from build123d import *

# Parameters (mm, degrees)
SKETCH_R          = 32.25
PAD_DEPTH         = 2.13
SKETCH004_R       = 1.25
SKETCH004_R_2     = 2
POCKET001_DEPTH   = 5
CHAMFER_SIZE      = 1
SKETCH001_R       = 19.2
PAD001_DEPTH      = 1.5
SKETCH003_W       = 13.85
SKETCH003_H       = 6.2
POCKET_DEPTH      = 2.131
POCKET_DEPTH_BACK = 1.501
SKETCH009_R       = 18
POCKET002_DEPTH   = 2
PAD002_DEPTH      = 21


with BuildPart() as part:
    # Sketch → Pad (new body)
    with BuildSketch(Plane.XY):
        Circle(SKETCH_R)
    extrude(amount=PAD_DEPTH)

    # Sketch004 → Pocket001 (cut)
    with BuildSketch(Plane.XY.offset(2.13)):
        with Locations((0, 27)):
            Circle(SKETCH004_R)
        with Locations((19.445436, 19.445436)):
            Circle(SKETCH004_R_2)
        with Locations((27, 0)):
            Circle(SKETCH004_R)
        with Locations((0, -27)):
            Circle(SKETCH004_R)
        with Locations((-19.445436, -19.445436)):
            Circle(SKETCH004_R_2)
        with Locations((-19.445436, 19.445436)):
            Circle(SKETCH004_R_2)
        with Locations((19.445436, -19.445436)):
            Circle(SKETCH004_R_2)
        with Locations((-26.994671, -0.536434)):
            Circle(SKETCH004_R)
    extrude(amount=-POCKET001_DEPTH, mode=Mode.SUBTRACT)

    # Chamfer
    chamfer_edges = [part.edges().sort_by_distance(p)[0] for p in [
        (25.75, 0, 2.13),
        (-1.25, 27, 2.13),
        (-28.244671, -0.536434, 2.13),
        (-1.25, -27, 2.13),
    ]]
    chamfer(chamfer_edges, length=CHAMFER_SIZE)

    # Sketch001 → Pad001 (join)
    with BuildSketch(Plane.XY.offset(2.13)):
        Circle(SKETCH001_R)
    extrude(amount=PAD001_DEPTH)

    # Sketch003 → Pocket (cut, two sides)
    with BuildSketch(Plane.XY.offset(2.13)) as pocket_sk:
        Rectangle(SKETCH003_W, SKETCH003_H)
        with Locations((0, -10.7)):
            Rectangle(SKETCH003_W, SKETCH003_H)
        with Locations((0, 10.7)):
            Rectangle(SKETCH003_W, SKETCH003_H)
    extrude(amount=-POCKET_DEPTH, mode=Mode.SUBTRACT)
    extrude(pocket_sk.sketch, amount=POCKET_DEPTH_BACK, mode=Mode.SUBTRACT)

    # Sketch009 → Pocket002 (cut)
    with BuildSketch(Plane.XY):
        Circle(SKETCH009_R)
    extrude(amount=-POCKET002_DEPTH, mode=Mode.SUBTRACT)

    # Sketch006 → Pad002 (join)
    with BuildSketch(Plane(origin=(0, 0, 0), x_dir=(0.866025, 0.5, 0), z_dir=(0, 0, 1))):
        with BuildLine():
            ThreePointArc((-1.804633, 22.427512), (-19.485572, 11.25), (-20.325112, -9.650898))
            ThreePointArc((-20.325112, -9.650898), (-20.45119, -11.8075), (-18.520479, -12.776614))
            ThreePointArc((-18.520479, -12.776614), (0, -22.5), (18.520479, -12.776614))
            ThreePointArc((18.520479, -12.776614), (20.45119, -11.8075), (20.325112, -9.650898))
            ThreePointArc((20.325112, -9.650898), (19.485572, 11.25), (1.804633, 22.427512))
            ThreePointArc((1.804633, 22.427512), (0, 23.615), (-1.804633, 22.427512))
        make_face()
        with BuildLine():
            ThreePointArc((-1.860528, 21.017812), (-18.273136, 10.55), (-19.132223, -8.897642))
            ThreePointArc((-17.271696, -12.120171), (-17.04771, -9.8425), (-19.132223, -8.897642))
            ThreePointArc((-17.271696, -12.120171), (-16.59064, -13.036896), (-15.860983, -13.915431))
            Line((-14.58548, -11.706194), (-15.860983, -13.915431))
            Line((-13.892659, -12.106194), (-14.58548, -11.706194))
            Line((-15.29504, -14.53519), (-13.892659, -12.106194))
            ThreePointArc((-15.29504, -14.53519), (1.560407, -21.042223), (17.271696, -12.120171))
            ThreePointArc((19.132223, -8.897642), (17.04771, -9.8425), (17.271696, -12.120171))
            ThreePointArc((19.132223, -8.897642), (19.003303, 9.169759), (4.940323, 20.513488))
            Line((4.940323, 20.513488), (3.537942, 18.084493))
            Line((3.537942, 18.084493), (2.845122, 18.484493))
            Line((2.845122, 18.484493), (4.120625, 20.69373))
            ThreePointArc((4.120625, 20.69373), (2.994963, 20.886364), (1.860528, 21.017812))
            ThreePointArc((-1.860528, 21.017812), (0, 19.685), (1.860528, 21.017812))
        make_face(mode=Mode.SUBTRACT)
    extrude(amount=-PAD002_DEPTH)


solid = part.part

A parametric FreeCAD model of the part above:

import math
import FreeCAD as App
import Part
import Sketcher
from FreeCAD import Vector
Q = App.Units.Quantity


def edges_at(feature, points):
    """Names of the edges that pass closest to the given points."""
    edges = feature.Shape.Edges
    near = lambda p: min(range(len(edges)), key=lambda i: edges[i].distToShape(Part.Vertex(*p))[0])
    return sorted({f"Edge{near(p) + 1}" for p in points})

doc = App.newDocument("Part")
body = doc.addObject("PartDesign::Body", "Body")

# Sketch on XY plane
sketch1 = doc.addObject("Sketcher::SketchObject", "Sketch")
body.addObject(sketch1)
sketch1.AttachmentSupport = (doc.XY_Plane, [""])
sketch1.MapMode = "FlatFace"
sketch1.addGeometry(Part.Circle(Vector(0, 0, 0), Vector(0, 0, 1), 32), False)
sketch1.addConstraint(Sketcher.Constraint("Coincident", 0, 3, -1, 1))
sketch1.addConstraint(Sketcher.Constraint("Diameter", 0, Q("64.5 mm")))
pad1 = doc.addObject("PartDesign::Pad", "Pad")
body.addObject(pad1)
pad1.Profile = sketch1
pad1.Length = 2.13

# Sketch on XY plane
sketch2 = doc.addObject("Sketcher::SketchObject", "Sketch001")
body.addObject(sketch2)
sketch2.AttachmentSupport = (doc.XY_Plane, [""])
sketch2.MapMode = "FlatFace"
sketch2.AttachmentOffset = App.Placement(Vector(0, 0, 2.13), App.Rotation())
sketch2.addGeometry(Part.Circle(Vector(0, 27, 0), Vector(0, 0, 1), 1.2), False)
sketch2.addGeometry(Part.Circle(Vector(19.4, 19.4, 0), Vector(0, 0, 1), 2), False)
sketch2.addGeometry(Part.Circle(Vector(27, 0, 0), Vector(0, 0, 1), 1.2), False)
sketch2.addGeometry(Part.Circle(Vector(0, -27, 0), Vector(0, 0, 1), 1.2), False)
sketch2.addGeometry(Part.Circle(Vector(-19.4, -19.4, 0), Vector(0, 0, 1), 2), False)
sketch2.addGeometry(Part.Circle(Vector(-19.4, 19.4, 0), Vector(0, 0, 1), 2), False)
sketch2.addGeometry(Part.Circle(Vector(19.4, -19.4, 0), Vector(0, 0, 1), 2), False)
sketch2.addGeometry(Part.Circle(Vector(-27, -0.5, 0), Vector(0, 0, 1), 1.2), False)
sketch2.addConstraint(Sketcher.Constraint("Equal", 0, 2))
sketch2.addConstraint(Sketcher.Constraint("Equal", 2, 3))
sketch2.addConstraint(Sketcher.Constraint("Equal", 1, 4))
sketch2.addConstraint(Sketcher.Constraint("Equal", 4, 5))
sketch2.addConstraint(Sketcher.Constraint("Equal", 5, 6))
sketch2.addConstraint(Sketcher.Constraint("Equal", 3, 7))
sketch2.addConstraint(Sketcher.Constraint("Symmetric", 0, 3, 3, 3, -1, 1))
sketch2.addConstraint(Sketcher.Constraint("Symmetric", 1, 3, 4, 3, -1, 1))
sketch2.addConstraint(Sketcher.Constraint("Symmetric", 5, 3, 6, 3, -1, 1))
sketch2.addConstraint(Sketcher.Constraint("Symmetric", 1, 3, 5, 3, -2))
sketch2.addConstraint(Sketcher.Constraint("PointOnObject", 0, 3, -2))
sketch2.addConstraint(Sketcher.Constraint("PointOnObject", 2, 3, -1))
sketch2.addConstraint(Sketcher.Constraint("Diameter", 1, Q("4 mm")))
sketch2.addConstraint(Sketcher.Constraint("Diameter", 0, Q("2.5 mm")))
sketch2.addConstraint(Sketcher.Constraint("DistanceY", -1, 1, 0, 3, Q("27 mm")))
sketch2.addConstraint(Sketcher.Constraint("DistanceX", -1, 1, 2, 3, Q("27 mm")))
sketch2.addConstraint(Sketcher.Constraint("DistanceX", 7, 3, -1, 1, Q("26.994671 mm")))
sketch2.addConstraint(Sketcher.Constraint("DistanceY", 7, 3, 5, 3, Q("19.98187 mm")))
sketch2.addConstraint(Sketcher.Constraint("DistanceX", -1, 1, 1, 3, Q("19.445436 mm")))
sketch2.addConstraint(Sketcher.Constraint("DistanceY", -1, 1, 1, 3, Q("19.445436 mm")))
pocket1 = doc.addObject("PartDesign::Pocket", "Pocket")
body.addObject(pocket1)
pocket1.Profile = sketch2
pocket1.Length = 5
doc.recompute()

chamfer = doc.addObject("PartDesign::Chamfer", "Chamfer")
body.addObject(chamfer)
chamfer.Base = (pocket1, edges_at(pocket1, [
    (25.75, 0, 2.13),
    (-1.25, 27, 2.13),
    (-28.245, -0.536, 2.13),
    (-1.25, -27, 2.13),
]))
chamfer.Size = 1

# Sketch on XY plane
sketch3 = doc.addObject("Sketcher::SketchObject", "Sketch002")
body.addObject(sketch3)
sketch3.AttachmentSupport = (doc.XY_Plane, [""])
sketch3.MapMode = "FlatFace"
sketch3.AttachmentOffset = App.Placement(Vector(0, 0, 2.13), App.Rotation())
sketch3.addGeometry(Part.Circle(Vector(0, 0, 0), Vector(0, 0, 1), 19), False)
sketch3.addConstraint(Sketcher.Constraint("Coincident", 0, 3, -1, 1))
sketch3.addConstraint(Sketcher.Constraint("Diameter", 0, Q("38.4 mm")))
pad2 = doc.addObject("PartDesign::Pad", "Pad001")
body.addObject(pad2)
pad2.Profile = sketch3
pad2.Length = 1.5

# Sketch on XY plane
sketch4 = doc.addObject("Sketcher::SketchObject", "Sketch003")
body.addObject(sketch4)
sketch4.AttachmentSupport = (doc.XY_Plane, [""])
sketch4.MapMode = "FlatFace"
sketch4.AttachmentOffset = App.Placement(Vector(0, 0, 2.13), App.Rotation())
sketch4.addGeometry(Part.LineSegment(Vector(-7, 3, 0), Vector(-7, -3, 0)), False)
sketch4.addGeometry(Part.LineSegment(Vector(-7, -3, 0), Vector(7, -3, 0)), False)
sketch4.addGeometry(Part.LineSegment(Vector(7, -3, 0), Vector(7, 3, 0)), False)
sketch4.addGeometry(Part.LineSegment(Vector(7, 3, 0), Vector(-7, 3, 0)), False)
sketch4.addGeometry(Part.LineSegment(Vector(-7, -8, 0), Vector(-7, -14, 0)), False)
sketch4.addGeometry(Part.LineSegment(Vector(-7, -14, 0), Vector(7, -14, 0)), False)
sketch4.addGeometry(Part.LineSegment(Vector(7, -14, 0), Vector(7, -8, 0)), False)
sketch4.addGeometry(Part.LineSegment(Vector(7, -8, 0), Vector(-7, -8, 0)), False)
sketch4.addGeometry(Part.LineSegment(Vector(-7, 14, 0), Vector(-7, 8, 0)), False)
sketch4.addGeometry(Part.LineSegment(Vector(-7, 8, 0), Vector(7, 8, 0)), False)
sketch4.addGeometry(Part.LineSegment(Vector(7, 8, 0), Vector(7, 14, 0)), False)
sketch4.addGeometry(Part.LineSegment(Vector(7, 14, 0), Vector(-7, 14, 0)), False)
sketch4.addConstraint(Sketcher.Constraint("Coincident", 0, 2, 1, 1))
sketch4.addConstraint(Sketcher.Constraint("Coincident", 1, 2, 2, 1))
sketch4.addConstraint(Sketcher.Constraint("Coincident", 2, 2, 3, 1))
sketch4.addConstraint(Sketcher.Constraint("Coincident", 3, 2, 0, 1))
sketch4.addConstraint(Sketcher.Constraint("Coincident", 4, 2, 5, 1))
sketch4.addConstraint(Sketcher.Constraint("Coincident", 5, 2, 6, 1))
sketch4.addConstraint(Sketcher.Constraint("Coincident", 6, 2, 7, 1))
sketch4.addConstraint(Sketcher.Constraint("Coincident", 7, 2, 4, 1))
sketch4.addConstraint(Sketcher.Constraint("Coincident", 8, 2, 9, 1))
sketch4.addConstraint(Sketcher.Constraint("Coincident", 9, 2, 10, 1))
sketch4.addConstraint(Sketcher.Constraint("Coincident", 10, 2, 11, 1))
sketch4.addConstraint(Sketcher.Constraint("Coincident", 11, 2, 8, 1))
sketch4.addConstraint(Sketcher.Constraint("Vertical", 0))
sketch4.addConstraint(Sketcher.Constraint("Horizontal", 1))
sketch4.addConstraint(Sketcher.Constraint("Vertical", 2))
sketch4.addConstraint(Sketcher.Constraint("Horizontal", 3))
sketch4.addConstraint(Sketcher.Constraint("Vertical", 4))
sketch4.addConstraint(Sketcher.Constraint("Horizontal", 5))
sketch4.addConstraint(Sketcher.Constraint("Vertical", 6))
sketch4.addConstraint(Sketcher.Constraint("Horizontal", 7))
sketch4.addConstraint(Sketcher.Constraint("Vertical", 8))
sketch4.addConstraint(Sketcher.Constraint("Horizontal", 9))
sketch4.addConstraint(Sketcher.Constraint("Vertical", 10))
sketch4.addConstraint(Sketcher.Constraint("Horizontal", 11))
sketch4.addConstraint(Sketcher.Constraint("Symmetric", 0, 2, 2, 2, -1, 1))
sketch4.addConstraint(Sketcher.Constraint("Symmetric", 6, 2, 8, 2, -1, 1))
sketch4.addConstraint(Sketcher.Constraint("Symmetric", 4, 2, 10, 2, -1, 1))
sketch4.addConstraint(Sketcher.Constraint("Vertical", 3, 2, 4, 2))
sketch4.addConstraint(Sketcher.Constraint("Vertical", 2, 2, 5, 2))
sketch4.addConstraint(Sketcher.Constraint("Equal", 2, 4))
sketch4.addConstraint(Sketcher.Constraint("DistanceY", 0, 2, 0, 1, Q("6.2 mm")))
sketch4.addConstraint(Sketcher.Constraint("DistanceX", 1, 1, 1, 2, Q("13.85 mm")))
sketch4.addConstraint(Sketcher.Constraint("DistanceY", 4, 2, -1, 1, Q("13.8 mm")))
pocket2 = doc.addObject("PartDesign::Pocket", "Pocket001")
body.addObject(pocket2)
pocket2.Profile = sketch4
pocket2.Type = "ThroughAll"
pocket2.Midplane = True

# Sketch on XY plane
sketch5 = doc.addObject("Sketcher::SketchObject", "Sketch004")
body.addObject(sketch5)
sketch5.AttachmentSupport = (doc.XY_Plane, [""])
sketch5.MapMode = "FlatFace"
sketch5.addGeometry(Part.Circle(Vector(0, 0, 0), Vector(0, 0, 1), 18), False)
sketch5.addConstraint(Sketcher.Constraint("Coincident", 0, 3, -1, 1))
sketch5.addConstraint(Sketcher.Constraint("Diameter", 0, Q("36 mm")))
pocket3 = doc.addObject("PartDesign::Pocket", "Pocket002")
body.addObject(pocket3)
pocket3.Profile = sketch5
pocket3.Length = 2

# Sketch on XY plane
sketch6 = doc.addObject("Sketcher::SketchObject", "Sketch005")
body.addObject(sketch6)
sketch6.AttachmentSupport = (doc.XY_Plane, [""])
sketch6.MapMode = "FlatFace"
sketch6.addGeometry(Part.ArcOfCircle(Part.Circle(Vector(0, 0, 0), Vector(0, 0, 1), 22.5), math.radians(125), math.radians(235)), False)
sketch6.addGeometry(Part.ArcOfCircle(Part.Circle(Vector(-10.8, -18.7, 0), Vector(0, 0, 1), 2), math.radians(173), math.radians(307)), False)
sketch6.addGeometry(Part.ArcOfCircle(Part.Circle(Vector(0, 0, 0), Vector(0, 0, 1), 22.5), math.radians(-115), math.radians(-5)), False)
sketch6.addGeometry(Part.ArcOfCircle(Part.Circle(Vector(21.6, 0, 0), Vector(0, 0, 1), 2), math.radians(-67), math.radians(67)), False)
sketch6.addGeometry(Part.ArcOfCircle(Part.Circle(Vector(0, 0, 0), Vector(0, 0, 1), 22.5), math.radians(5), math.radians(115)), False)
sketch6.addGeometry(Part.ArcOfCircle(Part.Circle(Vector(-10.8, 18.7, 0), Vector(0, 0, 1), 2), math.radians(53), math.radians(187)), False)
sketch6.addGeometry(Part.ArcOfCircle(Part.Circle(Vector(0, 0, 0), Vector(0, 0, 1), 21.1), math.radians(125), math.radians(235)), False)
sketch6.addGeometry(Part.ArcOfCircle(Part.Circle(Vector(-10.8, 18.7, 0), Vector(0, 0, 1), 2), math.radians(-131), math.radians(11)), False)
sketch6.addGeometry(Part.ArcOfCircle(Part.Circle(Vector(0, 0, 0), Vector(0, 0, 1), 21.1), math.radians(108.74), math.radians(114.94)), False)
sketch6.addGeometry(Part.LineSegment(Vector(-6.8, 20, 0), Vector(-6.8, 17.4, 0)), False)
sketch6.addGeometry(Part.LineSegment(Vector(-6.8, 17.4, 0), Vector(-6, 17.4, 0)), False)
sketch6.addGeometry(Part.LineSegment(Vector(-6, 17.4, 0), Vector(-6, 20.2, 0)), False)
sketch6.addGeometry(Part.ArcOfCircle(Part.Circle(Vector(0, 0, 0), Vector(0, 0, 1), 21.1), math.radians(5), math.radians(106)), False)
sketch6.addGeometry(Part.ArcOfCircle(Part.Circle(Vector(21.6, 0, 0), Vector(0, 0, 1), 2), math.radians(109), math.radians(251)), False)
sketch6.addGeometry(Part.ArcOfCircle(Part.Circle(Vector(0, 0, 0), Vector(0, 0, 1), 21.1), math.radians(-106), math.radians(-5)), False)
sketch6.addGeometry(Part.LineSegment(Vector(-6, -20.2, 0), Vector(-6, -17.4, 0)), False)
sketch6.addGeometry(Part.LineSegment(Vector(-6, -17.4, 0), Vector(-6.8, -17.4, 0)), False)
sketch6.addGeometry(Part.LineSegment(Vector(-6.8, -17.4, 0), Vector(-6.8, -20, 0)), False)
sketch6.addGeometry(Part.ArcOfCircle(Part.Circle(Vector(0, 0, 0), Vector(0, 0, 1), 21.1), math.radians(-114.94), math.radians(-108.74)), False)
sketch6.addGeometry(Part.ArcOfCircle(Part.Circle(Vector(-10.8, -18.7, 0), Vector(0, 0, 1), 2), math.radians(-11), math.radians(131)), False)
sketch6.addConstraint(Sketcher.Constraint("Coincident", 0, 2, 1, 1))
sketch6.addConstraint(Sketcher.Constraint("Coincident", 1, 2, 2, 1))
sketch6.addConstraint(Sketcher.Constraint("Coincident", 2, 2, 3, 1))
sketch6.addConstraint(Sketcher.Constraint("Coincident", 3, 2, 4, 1))
sketch6.addConstraint(Sketcher.Constraint("Coincident", 4, 2, 5, 1))
sketch6.addConstraint(Sketcher.Constraint("Coincident", 5, 2, 0, 1))
sketch6.addConstraint(Sketcher.Constraint("Coincident", 6, 1, 7, 1))
sketch6.addConstraint(Sketcher.Constraint("Coincident", 7, 2, 8, 2))
sketch6.addConstraint(Sketcher.Constraint("Coincident", 8, 1, 9, 1))
sketch6.addConstraint(Sketcher.Constraint("Coincident", 9, 2, 10, 1))
sketch6.addConstraint(Sketcher.Constraint("Coincident", 10, 2, 11, 1))
sketch6.addConstraint(Sketcher.Constraint("Coincident", 11, 2, 12, 2))
sketch6.addConstraint(Sketcher.Constraint("Coincident", 12, 1, 13, 1))
sketch6.addConstraint(Sketcher.Constraint("Coincident", 13, 2, 14, 2))
sketch6.addConstraint(Sketcher.Constraint("Coincident", 14, 1, 15, 1))
sketch6.addConstraint(Sketcher.Constraint("Coincident", 15, 2, 16, 1))
sketch6.addConstraint(Sketcher.Constraint("Coincident", 16, 2, 17, 1))
sketch6.addConstraint(Sketcher.Constraint("Coincident", 17, 2, 18, 2))
sketch6.addConstraint(Sketcher.Constraint("Coincident", 18, 1, 19, 1))
sketch6.addConstraint(Sketcher.Constraint("Coincident", 19, 2, 6, 2))
sketch6.addConstraint(Sketcher.Constraint("Vertical", 9))
sketch6.addConstraint(Sketcher.Constraint("Horizontal", 10))
sketch6.addConstraint(Sketcher.Constraint("Vertical", 11))
sketch6.addConstraint(Sketcher.Constraint("Vertical", 15))
sketch6.addConstraint(Sketcher.Constraint("Horizontal", 16))
sketch6.addConstraint(Sketcher.Constraint("Vertical", 17))
sketch6.addConstraint(Sketcher.Constraint("Coincident", 0, 3, -1, 1))
sketch6.addConstraint(Sketcher.Constraint("Coincident", 2, 3, -1, 1))
sketch6.addConstraint(Sketcher.Constraint("Coincident", 4, 3, -1, 1))
sketch6.addConstraint(Sketcher.Constraint("Coincident", 6, 3, -1, 1))
sketch6.addConstraint(Sketcher.Constraint("Coincident", 12, 3, -1, 1))
sketch6.addConstraint(Sketcher.Constraint("Coincident", 14, 3, -1, 1))
sketch6.addConstraint(Sketcher.Constraint("Coincident", 7, 3, 5, 3))
sketch6.addConstraint(Sketcher.Constraint("Coincident", 13, 3, 3, 3))
sketch6.addConstraint(Sketcher.Constraint("Coincident", 19, 3, 1, 3))
sketch6.addConstraint(Sketcher.Constraint("Equal", 0, 2))
sketch6.addConstraint(Sketcher.Constraint("Equal", 1, 3))
sketch6.addConstraint(Sketcher.Constraint("Equal", 2, 4))
sketch6.addConstraint(Sketcher.Constraint("Equal", 3, 5))
sketch6.addConstraint(Sketcher.Constraint("Equal", 5, 7))
sketch6.addConstraint(Sketcher.Constraint("Equal", 6, 12))
sketch6.addConstraint(Sketcher.Constraint("Equal", 7, 13))
sketch6.addConstraint(Sketcher.Constraint("Equal", 12, 14))
sketch6.addConstraint(Sketcher.Constraint("Equal", 13, 19))
sketch6.addConstraint(Sketcher.Constraint("Symmetric", 1, 3, 5, 3, -1))
sketch6.addConstraint(Sketcher.Constraint("Symmetric", 10, 2, 15, 2, -1))
sketch6.addConstraint(Sketcher.Constraint("Symmetric", 8, 1, 17, 2, -1))
sketch6.addConstraint(Sketcher.Constraint("Vertical", 2, 2, 3, 2))
sketch6.addConstraint(Sketcher.Constraint("Radius", 0, Q("22.5 mm")))
sketch6.addConstraint(Sketcher.Constraint("Radius", 6, Q("21.099999 mm")))
sketch6.addConstraint(Sketcher.Constraint("DistanceX", 10, 1, 10, 2, Q("0.8 mm")))
sketch6.addConstraint(Sketcher.Constraint("Radius", 1, Q("1.965 mm")))
sketch6.addConstraint(Sketcher.Constraint("DistanceX", -1, 1, 3, 3, Q("21.65 mm")))
sketch6.addConstraint(Sketcher.Constraint("Radius", 8, Q("21.099906 mm")))
sketch6.addConstraint(Sketcher.Constraint("Radius", 18, Q("21.100352 mm")))
sketch6.addConstraint(Sketcher.Constraint("DistanceY", 11, 1, 11, 2, Q("2.804762 mm")))
sketch6.addConstraint(Sketcher.Constraint("DistanceY", -1, 1, 9, 2, Q("17.4306 mm")))
sketch6.addConstraint(Sketcher.Constraint("DistanceY", 1, 3, 5, 3, Q("37.4989 mm")))
sketch6.addConstraint(Sketcher.Constraint("DistanceX", 19, 3, 1, 2, Q("1.174102 mm")))
sketch6.addConstraint(Sketcher.Constraint("DistanceX", 6, 1, 18, 3, Q("12.1203 mm")))
sketch6.addConstraint(Sketcher.Constraint("DistanceY", 9, 2, 9, 1, Q("2.551007 mm")))
sketch6.addConstraint(Sketcher.Constraint("DistanceY", -1, 1, 7, 2, Q("19.132221 mm")))
pad3 = doc.addObject("PartDesign::Pad", "Pad002")
body.addObject(pad3)
pad3.Profile = sketch6
pad3.Length = 21
pad3.Reversed = True

doc.recompute()
